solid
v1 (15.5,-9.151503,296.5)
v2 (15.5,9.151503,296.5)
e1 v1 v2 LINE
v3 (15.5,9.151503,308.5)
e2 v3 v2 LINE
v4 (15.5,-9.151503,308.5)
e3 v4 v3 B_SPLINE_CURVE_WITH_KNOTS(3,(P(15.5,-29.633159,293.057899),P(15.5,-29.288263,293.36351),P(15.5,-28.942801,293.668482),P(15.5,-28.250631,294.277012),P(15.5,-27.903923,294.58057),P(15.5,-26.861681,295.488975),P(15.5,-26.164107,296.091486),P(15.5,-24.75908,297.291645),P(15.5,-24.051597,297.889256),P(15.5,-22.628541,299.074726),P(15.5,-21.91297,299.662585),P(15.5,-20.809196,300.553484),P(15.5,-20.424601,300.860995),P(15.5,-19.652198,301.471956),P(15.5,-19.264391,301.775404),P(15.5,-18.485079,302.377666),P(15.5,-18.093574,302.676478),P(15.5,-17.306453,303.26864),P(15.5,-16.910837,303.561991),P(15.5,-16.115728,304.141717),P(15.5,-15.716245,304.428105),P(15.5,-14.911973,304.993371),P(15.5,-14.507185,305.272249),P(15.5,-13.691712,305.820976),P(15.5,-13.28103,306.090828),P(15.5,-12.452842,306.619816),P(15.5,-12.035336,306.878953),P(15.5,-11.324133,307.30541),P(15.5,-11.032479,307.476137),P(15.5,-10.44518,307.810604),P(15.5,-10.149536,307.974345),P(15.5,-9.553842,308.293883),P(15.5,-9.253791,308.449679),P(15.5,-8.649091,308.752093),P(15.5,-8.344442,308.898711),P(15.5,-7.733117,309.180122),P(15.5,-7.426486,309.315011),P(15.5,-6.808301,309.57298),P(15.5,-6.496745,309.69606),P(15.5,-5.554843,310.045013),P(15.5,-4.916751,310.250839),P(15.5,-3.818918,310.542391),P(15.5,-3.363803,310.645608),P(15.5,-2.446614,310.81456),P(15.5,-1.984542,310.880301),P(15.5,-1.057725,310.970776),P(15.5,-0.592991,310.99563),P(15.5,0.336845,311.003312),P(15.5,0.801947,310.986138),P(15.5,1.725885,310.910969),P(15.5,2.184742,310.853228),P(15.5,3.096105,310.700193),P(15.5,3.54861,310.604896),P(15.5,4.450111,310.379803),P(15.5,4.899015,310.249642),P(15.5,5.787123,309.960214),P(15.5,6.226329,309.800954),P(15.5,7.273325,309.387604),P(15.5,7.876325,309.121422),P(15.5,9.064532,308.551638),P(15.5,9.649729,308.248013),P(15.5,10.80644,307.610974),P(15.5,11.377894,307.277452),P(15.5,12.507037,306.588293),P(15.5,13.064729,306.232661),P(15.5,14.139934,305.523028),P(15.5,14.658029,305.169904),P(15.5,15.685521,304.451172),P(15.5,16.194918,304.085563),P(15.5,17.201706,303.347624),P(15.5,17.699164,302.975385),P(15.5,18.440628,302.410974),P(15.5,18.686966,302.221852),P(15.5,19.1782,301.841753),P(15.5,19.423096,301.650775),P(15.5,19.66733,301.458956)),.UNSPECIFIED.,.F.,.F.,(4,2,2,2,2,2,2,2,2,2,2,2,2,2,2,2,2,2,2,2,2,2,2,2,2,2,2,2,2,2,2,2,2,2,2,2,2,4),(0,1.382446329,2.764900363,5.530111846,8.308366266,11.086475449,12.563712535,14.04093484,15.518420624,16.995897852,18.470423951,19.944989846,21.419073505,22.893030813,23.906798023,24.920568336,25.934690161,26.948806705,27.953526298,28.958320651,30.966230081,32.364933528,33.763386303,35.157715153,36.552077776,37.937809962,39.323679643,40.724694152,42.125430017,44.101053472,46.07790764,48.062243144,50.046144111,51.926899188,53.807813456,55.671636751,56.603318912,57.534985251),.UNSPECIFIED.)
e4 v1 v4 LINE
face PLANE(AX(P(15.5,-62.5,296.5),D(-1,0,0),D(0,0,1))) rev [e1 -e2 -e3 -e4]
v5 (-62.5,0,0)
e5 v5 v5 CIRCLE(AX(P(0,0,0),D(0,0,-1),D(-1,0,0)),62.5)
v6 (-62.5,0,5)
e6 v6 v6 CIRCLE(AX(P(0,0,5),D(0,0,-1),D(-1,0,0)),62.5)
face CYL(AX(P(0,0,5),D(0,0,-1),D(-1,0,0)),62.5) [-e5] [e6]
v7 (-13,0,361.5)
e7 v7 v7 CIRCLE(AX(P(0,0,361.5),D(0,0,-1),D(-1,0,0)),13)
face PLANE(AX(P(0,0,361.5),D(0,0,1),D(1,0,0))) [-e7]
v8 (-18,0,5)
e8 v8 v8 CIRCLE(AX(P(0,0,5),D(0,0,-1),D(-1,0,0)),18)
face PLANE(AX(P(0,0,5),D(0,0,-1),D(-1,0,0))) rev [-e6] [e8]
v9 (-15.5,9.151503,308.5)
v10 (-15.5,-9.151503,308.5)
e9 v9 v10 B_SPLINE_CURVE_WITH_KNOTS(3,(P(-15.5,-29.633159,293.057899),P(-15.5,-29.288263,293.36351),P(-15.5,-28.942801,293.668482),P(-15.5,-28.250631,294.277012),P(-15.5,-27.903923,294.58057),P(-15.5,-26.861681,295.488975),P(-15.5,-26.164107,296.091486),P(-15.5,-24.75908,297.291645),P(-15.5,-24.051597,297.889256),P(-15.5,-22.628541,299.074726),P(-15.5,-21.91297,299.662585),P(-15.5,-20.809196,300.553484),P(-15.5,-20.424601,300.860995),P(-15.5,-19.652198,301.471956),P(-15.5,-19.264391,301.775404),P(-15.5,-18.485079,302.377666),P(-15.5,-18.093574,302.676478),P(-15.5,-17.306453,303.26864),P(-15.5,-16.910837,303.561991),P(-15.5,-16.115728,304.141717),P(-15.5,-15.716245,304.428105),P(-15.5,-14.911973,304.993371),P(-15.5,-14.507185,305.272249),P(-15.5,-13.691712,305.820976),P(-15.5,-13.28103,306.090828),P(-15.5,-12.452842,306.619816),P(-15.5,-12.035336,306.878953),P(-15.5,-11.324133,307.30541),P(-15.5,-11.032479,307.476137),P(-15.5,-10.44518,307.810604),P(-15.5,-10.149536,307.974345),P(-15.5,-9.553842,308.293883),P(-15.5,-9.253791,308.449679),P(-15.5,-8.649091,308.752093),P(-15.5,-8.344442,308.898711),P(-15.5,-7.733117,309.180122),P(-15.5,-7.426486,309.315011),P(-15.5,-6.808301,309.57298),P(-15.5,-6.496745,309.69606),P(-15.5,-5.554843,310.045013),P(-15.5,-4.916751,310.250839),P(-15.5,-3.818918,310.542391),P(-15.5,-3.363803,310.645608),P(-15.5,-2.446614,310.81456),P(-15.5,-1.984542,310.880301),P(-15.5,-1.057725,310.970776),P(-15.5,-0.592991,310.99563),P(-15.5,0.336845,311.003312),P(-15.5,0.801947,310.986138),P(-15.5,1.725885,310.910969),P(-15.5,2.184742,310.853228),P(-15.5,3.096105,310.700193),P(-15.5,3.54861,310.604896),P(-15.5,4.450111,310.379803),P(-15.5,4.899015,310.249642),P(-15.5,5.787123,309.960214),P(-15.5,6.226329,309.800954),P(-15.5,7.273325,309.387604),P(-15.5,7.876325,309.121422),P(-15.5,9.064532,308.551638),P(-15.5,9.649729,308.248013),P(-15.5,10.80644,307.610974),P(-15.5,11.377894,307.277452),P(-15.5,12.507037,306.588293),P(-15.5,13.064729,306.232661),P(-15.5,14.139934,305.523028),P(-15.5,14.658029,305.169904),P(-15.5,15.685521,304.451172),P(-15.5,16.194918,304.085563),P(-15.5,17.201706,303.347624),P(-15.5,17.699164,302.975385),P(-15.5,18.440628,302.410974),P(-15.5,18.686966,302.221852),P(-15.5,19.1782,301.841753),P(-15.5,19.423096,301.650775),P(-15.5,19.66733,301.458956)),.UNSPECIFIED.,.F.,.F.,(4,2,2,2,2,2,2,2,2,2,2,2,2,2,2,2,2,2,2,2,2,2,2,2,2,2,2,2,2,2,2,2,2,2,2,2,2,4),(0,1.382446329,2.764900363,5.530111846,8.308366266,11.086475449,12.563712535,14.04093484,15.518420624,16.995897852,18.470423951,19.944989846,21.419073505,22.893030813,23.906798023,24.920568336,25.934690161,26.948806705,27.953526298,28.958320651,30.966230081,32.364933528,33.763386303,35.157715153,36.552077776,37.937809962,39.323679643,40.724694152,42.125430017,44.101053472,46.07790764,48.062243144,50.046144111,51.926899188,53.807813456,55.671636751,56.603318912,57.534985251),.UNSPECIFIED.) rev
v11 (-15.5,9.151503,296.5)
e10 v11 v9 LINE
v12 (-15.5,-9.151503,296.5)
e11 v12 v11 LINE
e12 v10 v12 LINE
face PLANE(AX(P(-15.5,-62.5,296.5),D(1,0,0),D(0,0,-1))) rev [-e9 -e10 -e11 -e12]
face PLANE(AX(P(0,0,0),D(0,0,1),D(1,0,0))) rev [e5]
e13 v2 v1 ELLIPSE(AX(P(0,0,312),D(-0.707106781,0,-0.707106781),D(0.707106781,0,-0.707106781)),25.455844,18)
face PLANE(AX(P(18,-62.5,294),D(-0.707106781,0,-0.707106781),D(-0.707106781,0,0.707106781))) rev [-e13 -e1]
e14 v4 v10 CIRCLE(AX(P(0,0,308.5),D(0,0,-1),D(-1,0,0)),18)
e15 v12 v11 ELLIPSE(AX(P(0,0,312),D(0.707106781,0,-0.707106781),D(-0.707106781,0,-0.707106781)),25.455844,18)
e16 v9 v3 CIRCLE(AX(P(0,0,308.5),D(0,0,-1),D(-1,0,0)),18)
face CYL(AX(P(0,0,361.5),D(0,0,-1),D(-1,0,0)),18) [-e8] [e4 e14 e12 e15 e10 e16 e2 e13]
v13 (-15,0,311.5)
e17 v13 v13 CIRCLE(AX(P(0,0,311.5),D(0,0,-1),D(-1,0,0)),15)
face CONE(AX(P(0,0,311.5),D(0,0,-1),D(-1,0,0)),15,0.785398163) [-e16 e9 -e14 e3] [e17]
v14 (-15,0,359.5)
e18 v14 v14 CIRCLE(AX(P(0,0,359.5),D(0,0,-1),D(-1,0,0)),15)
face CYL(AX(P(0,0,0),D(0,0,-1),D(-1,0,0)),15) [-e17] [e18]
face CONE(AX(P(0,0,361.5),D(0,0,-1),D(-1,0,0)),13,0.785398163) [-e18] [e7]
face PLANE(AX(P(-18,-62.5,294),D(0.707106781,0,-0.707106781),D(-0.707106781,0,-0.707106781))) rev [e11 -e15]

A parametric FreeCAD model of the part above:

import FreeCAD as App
import Part
import Sketcher
Q = App.Units.Quantity


def add_polygon(sketch, points):
    """Adds a closed chain of lines whose ends are joined by coincident constraints."""
    first, n = sketch.GeometryCount, len(points)
    for a, b in zip(points, points[1:] + points[:1]):
        sketch.addGeometry(Part.LineSegment(App.Vector(*a, 0), App.Vector(*b, 0)), False)
    for i in range(n):
        sketch.addConstraint(Sketcher.Constraint("Coincident", first + i, 2, first + (i + 1) % n, 1))

doc = App.newDocument("Part")
params = doc.addObject("Spreadsheet::Sheet", "Params")
for row, (alias, value) in enumerate([
    ("sketch1_diameter", "36 mm"),
    ("pad1_length", "361.5 mm"),
    ("sketch2_diameter", "125 mm"),
    ("pad2_length", "5 mm"),
    ("sketch3_width", "5 mm"),
    ("sketch3_height", "48 mm"),
    ("sketch3_height2", "53 mm"),
    ("groove_angle", "360 deg"),
    ("sketch4_height", "65 mm"),
    ("sketch4_width", "2.5 mm"),
], start=1):
    params.set(f"A{row}", alias)
    params.set(f"B{row}", "=" + value)
    params.setAlias(f"B{row}", alias)

body = doc.addObject("PartDesign::Body", "Body")

sketch1 = body.newObject("Sketcher::SketchObject", "Sketch")
sketch1.AttachmentSupport = (doc.getObject("XY_Plane"), [""])
sketch1.MapMode = "FlatFace"
sketch1.addGeometry(Part.Circle(App.Vector(0, 0, 0), App.Vector(0, 0, 1), 18), False)
sketch1.addConstraint(Sketcher.Constraint("Coincident", 0, 3, -1, 1))
sketch1.addConstraint(Sketcher.Constraint("Diameter", 0, Q("36 mm")))
sketch1.setExpression("Constraints[1]", "Params.sketch1_diameter")
pad1 = body.newObject("PartDesign::Pad", "Pad")
pad1.Profile = sketch1
pad1.setExpression("Length", "Params.pad1_length")

sketch2 = body.newObject("Sketcher::SketchObject", "Sketch001")
sketch2.AttachmentSupport = (doc.getObject("XY_Plane"), [""])
sketch2.MapMode = "FlatFace"
sketch2.addGeometry(Part.Circle(App.Vector(0, 0, 0), App.Vector(0, 0, 1), 62), False)
sketch2.addConstraint(Sketcher.Constraint("Coincident", 0, 3, -1, 1))
sketch2.addConstraint(Sketcher.Constraint("Diameter", 0, Q("125 mm")))
sketch2.setExpression("Constraints[1]", "Params.sketch2_diameter")
pad2 = body.newObject("PartDesign::Pad", "Pad001")
pad2.Profile = sketch2
pad2.setExpression("Length", "Params.pad2_length")

sketch3 = body.newObject("Sketcher::SketchObject", "Sketch002")
sketch3.AttachmentSupport = (doc.getObject("YZ_Plane"), [""])
sketch3.MapMode = "FlatFace"
add_polygon(sketch3, [(18, 361.5), (13, 361.5), (15, 359.5), (15, 311.5), (18, 308.5)])
sketch3.addConstraint(Sketcher.Constraint("Horizontal", 0))
sketch3.addConstraint(Sketcher.Constraint("Vertical", 2))
sketch3.addConstraint(Sketcher.Constraint("Vertical", 4))
sketch3.addConstraint(Sketcher.Constraint("Parallel", 1, 3))
sketch3.addConstraint(Sketcher.Constraint("DistanceX", 0, 2, 0, 1, Q("5 mm")))
sketch3.addConstraint(Sketcher.Constraint("DistanceY", 2, 2, 2, 1, Q("48 mm")))
sketch3.addConstraint(Sketcher.Constraint("DistanceY", 4, 1, 4, 2, Q("53 mm")))
sketch3.addConstraint(Sketcher.Constraint("DistanceX", -1, 1, 0, 2, Q("13 mm")))
sketch3.addConstraint(Sketcher.Constraint("DistanceX", -1, 1, 1, 2, Q("15 mm")))
sketch3.addConstraint(Sketcher.Constraint("DistanceY", -1, 1, 0, 2, Q("361.5 mm")))
sketch3.setExpression("Constraints[9]", "Params.sketch3_width")
sketch3.setExpression("Constraints[10]", "Params.sketch3_height")
sketch3.setExpression("Constraints[11]", "Params.sketch3_height2")
groove = body.newObject("PartDesign::Groove", "Groove")
groove.Profile = sketch3
groove.ReferenceAxis = (sketch3, ["V_Axis"])
groove.setExpression("Angle", "Params.groove_angle")

sketch4 = body.newObject("Sketcher::SketchObject", "Sketch003")
sketch4.AttachmentSupport = (doc.getObject("XZ_Plane"), [""])
sketch4.MapMode = "FlatFace"
add_polygon(sketch4, [(18, 294), (15.5, 296.5), (15.5, 361.5), (18, 361.5)])
add_polygon(sketch4, [(-18, 294), (-18, 361.5), (-15.5, 361.5), (-15.5, 296.5)])
sketch4.addConstraint(Sketcher.Constraint("Vertical", 1))
sketch4.addConstraint(Sketcher.Constraint("Horizontal", 2))
sketch4.addConstraint(Sketcher.Constraint("Vertical", 3))
sketch4.addConstraint(Sketcher.Constraint("Vertical", 4))
sketch4.addConstraint(Sketcher.Constraint("Horizontal", 5))
sketch4.addConstraint(Sketcher.Constraint("Vertical", 6))
sketch4.addConstraint(Sketcher.Constraint("Symmetric", 2, 2, 4, 2, -2))
sketch4.addConstraint(Sketcher.Constraint("Symmetric", 0, 2, 6, 2, -2))
sketch4.addConstraint(Sketcher.Constraint("Perpendicular", 0, 7))
sketch4.addConstraint(Sketcher.Constraint("Horizontal", 3, 2, 7, 2))
sketch4.addConstraint(Sketcher.Constraint("DistanceY", 1, 1, 1, 2, Q("65 mm")))
sketch4.addConstraint(Sketcher.Constraint("DistanceX", 2, 1, 2, 2, Q("2.5 mm")))
sketch4.addConstraint(Sketcher.Constraint("DistanceX", -1, 1, 2, 2, Q("18 mm")))
sketch4.addConstraint(Sketcher.Constraint("DistanceY", -1, 1, 3, 2, Q("294 mm")))
sketch4.setExpression("Constraints[18]", "Params.sketch4_height")
sketch4.setExpression("Constraints[19]", "Params.sketch4_width")
pocket1 = body.newObject("PartDesign::Pocket", "Pocket")
pocket1.Profile = sketch4
pocket1.Type = "ThroughAll"
pocket1.Midplane = True

doc.recompute()
